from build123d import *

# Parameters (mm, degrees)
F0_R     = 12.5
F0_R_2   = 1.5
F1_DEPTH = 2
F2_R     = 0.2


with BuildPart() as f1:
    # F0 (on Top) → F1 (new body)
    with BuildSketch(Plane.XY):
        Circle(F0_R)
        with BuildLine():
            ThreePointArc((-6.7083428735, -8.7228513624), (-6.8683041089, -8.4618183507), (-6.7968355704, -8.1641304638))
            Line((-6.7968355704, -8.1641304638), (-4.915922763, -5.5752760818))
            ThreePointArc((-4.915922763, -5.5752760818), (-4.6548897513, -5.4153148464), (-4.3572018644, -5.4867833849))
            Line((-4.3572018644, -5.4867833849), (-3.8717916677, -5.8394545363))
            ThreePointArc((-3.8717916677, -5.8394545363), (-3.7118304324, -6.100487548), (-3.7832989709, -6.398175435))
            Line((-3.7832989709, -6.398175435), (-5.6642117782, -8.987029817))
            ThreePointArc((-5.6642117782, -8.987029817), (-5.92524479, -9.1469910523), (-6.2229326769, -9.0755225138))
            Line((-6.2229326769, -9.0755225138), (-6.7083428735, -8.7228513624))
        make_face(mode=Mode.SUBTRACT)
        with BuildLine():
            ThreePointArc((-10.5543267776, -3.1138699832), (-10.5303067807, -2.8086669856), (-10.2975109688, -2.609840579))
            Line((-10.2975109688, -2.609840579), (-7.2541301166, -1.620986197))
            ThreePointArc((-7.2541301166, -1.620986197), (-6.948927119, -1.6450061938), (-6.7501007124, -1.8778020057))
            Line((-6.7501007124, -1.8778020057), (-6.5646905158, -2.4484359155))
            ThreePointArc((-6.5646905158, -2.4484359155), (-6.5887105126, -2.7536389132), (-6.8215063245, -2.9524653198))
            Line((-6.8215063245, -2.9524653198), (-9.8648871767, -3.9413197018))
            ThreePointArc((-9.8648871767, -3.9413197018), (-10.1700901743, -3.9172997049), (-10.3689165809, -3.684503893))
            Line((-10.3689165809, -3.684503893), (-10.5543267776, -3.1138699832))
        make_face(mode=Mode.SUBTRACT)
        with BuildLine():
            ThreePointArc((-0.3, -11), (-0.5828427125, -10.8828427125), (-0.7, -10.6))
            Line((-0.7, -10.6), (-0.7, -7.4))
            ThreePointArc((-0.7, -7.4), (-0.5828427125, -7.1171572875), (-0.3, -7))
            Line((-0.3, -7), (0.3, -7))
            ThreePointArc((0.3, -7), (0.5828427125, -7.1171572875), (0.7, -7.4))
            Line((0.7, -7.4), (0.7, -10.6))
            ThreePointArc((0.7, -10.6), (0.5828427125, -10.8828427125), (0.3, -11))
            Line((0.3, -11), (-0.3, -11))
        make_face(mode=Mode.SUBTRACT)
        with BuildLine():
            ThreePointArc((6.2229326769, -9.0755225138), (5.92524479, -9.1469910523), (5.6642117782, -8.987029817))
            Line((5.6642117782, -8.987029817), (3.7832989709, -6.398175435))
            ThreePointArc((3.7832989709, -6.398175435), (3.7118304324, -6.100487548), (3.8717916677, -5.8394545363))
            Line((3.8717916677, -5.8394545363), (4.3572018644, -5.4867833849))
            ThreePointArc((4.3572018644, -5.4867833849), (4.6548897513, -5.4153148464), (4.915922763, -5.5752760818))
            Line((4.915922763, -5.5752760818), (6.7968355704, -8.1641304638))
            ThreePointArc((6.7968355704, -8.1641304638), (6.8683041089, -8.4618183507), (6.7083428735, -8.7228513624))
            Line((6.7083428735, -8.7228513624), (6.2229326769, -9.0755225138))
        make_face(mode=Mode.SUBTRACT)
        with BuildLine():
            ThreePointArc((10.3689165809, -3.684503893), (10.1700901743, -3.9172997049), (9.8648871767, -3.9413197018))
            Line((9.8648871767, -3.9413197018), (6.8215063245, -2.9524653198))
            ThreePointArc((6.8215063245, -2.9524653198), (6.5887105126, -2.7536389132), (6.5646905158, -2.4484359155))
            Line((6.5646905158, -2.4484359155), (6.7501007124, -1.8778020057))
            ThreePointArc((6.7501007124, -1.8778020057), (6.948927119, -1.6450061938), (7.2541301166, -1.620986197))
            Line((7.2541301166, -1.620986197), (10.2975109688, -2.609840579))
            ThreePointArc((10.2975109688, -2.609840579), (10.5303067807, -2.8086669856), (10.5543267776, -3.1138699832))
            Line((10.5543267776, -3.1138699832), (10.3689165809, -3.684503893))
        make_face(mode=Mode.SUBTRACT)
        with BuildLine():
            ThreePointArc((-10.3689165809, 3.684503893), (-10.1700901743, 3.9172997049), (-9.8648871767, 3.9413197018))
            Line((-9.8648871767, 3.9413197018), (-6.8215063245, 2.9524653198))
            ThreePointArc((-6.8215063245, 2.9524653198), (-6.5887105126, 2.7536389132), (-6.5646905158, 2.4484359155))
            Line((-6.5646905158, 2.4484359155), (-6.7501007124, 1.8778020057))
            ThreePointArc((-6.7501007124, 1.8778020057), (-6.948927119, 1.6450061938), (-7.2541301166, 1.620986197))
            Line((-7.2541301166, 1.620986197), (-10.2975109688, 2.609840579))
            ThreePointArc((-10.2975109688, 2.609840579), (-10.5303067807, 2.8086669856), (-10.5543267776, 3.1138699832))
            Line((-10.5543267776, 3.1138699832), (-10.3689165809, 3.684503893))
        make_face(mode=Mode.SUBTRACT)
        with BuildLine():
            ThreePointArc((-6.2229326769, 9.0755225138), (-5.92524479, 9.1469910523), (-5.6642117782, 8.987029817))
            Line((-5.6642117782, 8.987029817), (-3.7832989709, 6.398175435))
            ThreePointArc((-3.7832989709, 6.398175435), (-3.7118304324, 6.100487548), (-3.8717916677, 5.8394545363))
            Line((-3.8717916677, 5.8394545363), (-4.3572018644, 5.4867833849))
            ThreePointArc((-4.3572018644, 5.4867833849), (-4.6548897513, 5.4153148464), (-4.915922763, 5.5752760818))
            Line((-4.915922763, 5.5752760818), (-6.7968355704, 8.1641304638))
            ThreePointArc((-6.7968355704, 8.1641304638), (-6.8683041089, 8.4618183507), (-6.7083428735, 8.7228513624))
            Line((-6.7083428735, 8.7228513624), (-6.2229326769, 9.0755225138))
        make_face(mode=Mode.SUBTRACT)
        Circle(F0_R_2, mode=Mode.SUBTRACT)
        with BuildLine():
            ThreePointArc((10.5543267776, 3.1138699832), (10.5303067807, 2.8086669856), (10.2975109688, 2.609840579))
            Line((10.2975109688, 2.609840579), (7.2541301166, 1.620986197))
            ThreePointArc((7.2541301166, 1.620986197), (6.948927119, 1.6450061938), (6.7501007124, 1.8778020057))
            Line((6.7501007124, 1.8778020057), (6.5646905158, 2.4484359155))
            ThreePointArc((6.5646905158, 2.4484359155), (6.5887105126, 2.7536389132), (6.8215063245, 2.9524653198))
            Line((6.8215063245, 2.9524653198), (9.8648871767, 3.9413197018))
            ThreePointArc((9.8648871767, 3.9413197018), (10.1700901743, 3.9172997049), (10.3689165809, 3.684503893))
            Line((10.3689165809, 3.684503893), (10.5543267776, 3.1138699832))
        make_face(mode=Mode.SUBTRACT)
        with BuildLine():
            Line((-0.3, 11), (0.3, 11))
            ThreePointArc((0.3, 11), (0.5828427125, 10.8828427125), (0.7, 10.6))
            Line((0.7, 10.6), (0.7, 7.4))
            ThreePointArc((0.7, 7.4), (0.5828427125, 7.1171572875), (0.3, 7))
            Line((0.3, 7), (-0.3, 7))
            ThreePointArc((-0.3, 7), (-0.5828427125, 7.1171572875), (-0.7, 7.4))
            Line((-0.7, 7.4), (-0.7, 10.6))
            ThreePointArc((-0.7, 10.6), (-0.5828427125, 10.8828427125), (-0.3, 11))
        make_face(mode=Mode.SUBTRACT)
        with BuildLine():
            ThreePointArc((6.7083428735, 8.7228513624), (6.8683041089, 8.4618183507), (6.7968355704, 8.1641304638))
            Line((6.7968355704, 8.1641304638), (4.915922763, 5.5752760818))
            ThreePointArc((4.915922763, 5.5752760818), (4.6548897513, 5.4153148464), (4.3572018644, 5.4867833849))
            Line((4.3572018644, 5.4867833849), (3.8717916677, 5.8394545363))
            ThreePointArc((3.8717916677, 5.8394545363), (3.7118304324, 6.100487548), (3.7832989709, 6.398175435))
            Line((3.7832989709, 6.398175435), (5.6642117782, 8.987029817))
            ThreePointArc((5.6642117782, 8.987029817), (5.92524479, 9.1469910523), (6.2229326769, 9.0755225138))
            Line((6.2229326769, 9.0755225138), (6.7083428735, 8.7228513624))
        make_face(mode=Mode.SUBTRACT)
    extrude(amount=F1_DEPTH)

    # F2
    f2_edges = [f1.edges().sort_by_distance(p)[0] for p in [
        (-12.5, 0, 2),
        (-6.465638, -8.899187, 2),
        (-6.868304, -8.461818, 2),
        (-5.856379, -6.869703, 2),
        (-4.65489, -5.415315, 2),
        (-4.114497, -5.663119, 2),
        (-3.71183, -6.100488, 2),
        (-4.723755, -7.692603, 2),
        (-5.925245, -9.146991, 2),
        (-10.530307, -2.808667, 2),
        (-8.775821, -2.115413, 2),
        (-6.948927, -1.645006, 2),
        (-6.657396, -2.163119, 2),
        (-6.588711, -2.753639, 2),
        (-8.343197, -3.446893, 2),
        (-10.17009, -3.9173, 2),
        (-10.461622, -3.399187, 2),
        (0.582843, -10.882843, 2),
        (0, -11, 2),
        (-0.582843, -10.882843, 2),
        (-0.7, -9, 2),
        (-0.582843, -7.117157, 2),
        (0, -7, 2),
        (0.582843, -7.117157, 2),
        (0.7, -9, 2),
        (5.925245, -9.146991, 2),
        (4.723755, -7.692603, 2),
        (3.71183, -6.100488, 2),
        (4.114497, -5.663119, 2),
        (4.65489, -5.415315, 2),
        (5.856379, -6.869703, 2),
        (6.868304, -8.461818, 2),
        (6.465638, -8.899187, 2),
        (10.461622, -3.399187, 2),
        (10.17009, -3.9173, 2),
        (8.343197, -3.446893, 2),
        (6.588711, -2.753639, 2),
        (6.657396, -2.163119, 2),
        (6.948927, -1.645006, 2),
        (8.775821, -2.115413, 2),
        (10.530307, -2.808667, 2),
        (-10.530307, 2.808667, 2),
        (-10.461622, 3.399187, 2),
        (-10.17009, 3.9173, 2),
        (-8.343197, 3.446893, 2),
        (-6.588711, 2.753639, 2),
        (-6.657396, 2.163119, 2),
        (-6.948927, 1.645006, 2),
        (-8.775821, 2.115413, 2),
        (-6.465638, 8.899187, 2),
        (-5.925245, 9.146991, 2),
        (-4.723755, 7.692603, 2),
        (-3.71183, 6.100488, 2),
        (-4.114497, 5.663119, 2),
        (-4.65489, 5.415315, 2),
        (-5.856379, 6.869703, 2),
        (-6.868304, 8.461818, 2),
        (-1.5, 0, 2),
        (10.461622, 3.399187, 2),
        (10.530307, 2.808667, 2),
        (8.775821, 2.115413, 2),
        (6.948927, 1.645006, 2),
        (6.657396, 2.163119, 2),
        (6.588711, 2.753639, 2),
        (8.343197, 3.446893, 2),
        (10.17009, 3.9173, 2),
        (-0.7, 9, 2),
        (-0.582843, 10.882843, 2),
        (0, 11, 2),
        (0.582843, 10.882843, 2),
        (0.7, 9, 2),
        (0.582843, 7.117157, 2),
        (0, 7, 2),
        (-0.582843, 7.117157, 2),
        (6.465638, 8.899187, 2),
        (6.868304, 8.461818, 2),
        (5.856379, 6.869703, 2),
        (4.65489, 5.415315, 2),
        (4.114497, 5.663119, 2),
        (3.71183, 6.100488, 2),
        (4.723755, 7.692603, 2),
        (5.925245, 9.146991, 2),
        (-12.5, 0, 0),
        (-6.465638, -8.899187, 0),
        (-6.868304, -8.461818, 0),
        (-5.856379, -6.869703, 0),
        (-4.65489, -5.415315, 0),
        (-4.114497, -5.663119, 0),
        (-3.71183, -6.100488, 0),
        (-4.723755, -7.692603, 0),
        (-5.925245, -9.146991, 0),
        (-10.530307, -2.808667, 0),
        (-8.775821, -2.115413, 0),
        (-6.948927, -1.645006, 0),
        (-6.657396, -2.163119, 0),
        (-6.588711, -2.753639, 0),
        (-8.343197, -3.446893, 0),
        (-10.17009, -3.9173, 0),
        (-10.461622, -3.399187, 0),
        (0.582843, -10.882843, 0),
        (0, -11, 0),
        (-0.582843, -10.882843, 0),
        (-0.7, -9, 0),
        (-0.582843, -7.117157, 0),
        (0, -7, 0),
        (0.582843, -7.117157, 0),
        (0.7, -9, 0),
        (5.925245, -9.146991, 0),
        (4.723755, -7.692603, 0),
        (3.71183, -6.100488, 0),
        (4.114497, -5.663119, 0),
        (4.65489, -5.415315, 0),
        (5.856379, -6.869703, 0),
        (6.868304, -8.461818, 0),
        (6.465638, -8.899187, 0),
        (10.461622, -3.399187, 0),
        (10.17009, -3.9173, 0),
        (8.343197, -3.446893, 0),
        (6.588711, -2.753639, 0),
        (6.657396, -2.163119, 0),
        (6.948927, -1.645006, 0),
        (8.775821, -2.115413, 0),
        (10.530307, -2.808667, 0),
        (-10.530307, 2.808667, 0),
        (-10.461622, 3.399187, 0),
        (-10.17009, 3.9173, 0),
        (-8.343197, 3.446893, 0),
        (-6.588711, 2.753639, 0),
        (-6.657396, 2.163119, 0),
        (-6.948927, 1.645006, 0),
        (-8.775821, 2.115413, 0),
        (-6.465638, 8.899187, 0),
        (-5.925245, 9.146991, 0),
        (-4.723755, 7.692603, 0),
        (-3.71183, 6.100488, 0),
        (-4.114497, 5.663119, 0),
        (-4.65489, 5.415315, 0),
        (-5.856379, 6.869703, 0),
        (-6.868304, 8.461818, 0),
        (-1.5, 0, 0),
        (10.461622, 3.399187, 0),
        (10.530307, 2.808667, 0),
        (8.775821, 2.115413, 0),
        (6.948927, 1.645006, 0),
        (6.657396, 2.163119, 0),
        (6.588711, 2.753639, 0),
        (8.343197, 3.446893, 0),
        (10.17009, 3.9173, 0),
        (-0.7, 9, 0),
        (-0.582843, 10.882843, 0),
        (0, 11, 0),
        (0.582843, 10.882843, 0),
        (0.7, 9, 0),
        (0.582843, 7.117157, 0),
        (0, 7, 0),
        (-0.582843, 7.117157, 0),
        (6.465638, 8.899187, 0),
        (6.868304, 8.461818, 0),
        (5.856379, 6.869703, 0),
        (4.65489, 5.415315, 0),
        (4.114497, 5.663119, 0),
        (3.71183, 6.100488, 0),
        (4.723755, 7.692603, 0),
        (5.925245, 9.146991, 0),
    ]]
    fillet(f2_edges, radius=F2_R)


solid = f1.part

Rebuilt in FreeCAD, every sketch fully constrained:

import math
import FreeCAD as App
import Part
import Sketcher
Q = App.Units.Quantity


def edges_at(feature, points):
    """Names of the edges that pass closest to the given points."""
    edges = feature.Shape.Edges
    near = lambda p: min(range(len(edges)), key=lambda i: edges[i].distToShape(Part.Vertex(*p))[0])
    return sorted({f"Edge{near(p) + 1}" for p in points})

doc = App.newDocument("Part")
body = doc.addObject("PartDesign::Body", "Body")

sketch1 = body.newObject("Sketcher::SketchObject", "Sketch")
sketch1.AttachmentSupport = (doc.getObject("XY_Plane"), [""])
sketch1.MapMode = "FlatFace"
sketch1.addGeometry(Part.Circle(App.Vector(0, 0, 0), App.Vector(0, 0, 1), 12.5), False)
sketch1.addGeometry(Part.LineSegment(App.Vector(-6.222933, -9.075523, 0), App.Vector(-6.708343, -8.722851, 0)), False)
sketch1.addGeometry(Part.ArcOfCircle(Part.Circle(App.Vector(-6.473229, -8.399245, 0), App.Vector(0, 0, 1), 0.4), math.radians(144), math.radians(234)), False)
sketch1.addGeometry(Part.LineSegment(App.Vector(-6.796836, -8.16413, 0), App.Vector(-4.915923, -5.575276, 0)), False)
sketch1.addGeometry(Part.ArcOfCircle(Part.Circle(App.Vector(-4.592316, -5.81039, 0), App.Vector(0, 0, 1), 0.4), math.radians(54), math.radians(144)), False)
sketch1.addGeometry(Part.LineSegment(App.Vector(-4.357202, -5.486783, 0), App.Vector(-3.871792, -5.839455, 0)), False)
sketch1.addGeometry(Part.ArcOfCircle(Part.Circle(App.Vector(-4.106906, -6.163061, 0), App.Vector(0, 0, 1), 0.4), math.radians(-36), math.radians(54)), False)
sketch1.addGeometry(Part.LineSegment(App.Vector(-3.783299, -6.398175, 0), App.Vector(-5.664212, -8.98703, 0)), False)
sketch1.addGeometry(Part.ArcOfCircle(Part.Circle(App.Vector(-5.987819, -8.751916, 0), App.Vector(0, 0, 1), 0.4), math.radians(-126), math.radians(-36)), False)
sketch1.addGeometry(Part.LineSegment(App.Vector(0.3, -11, 0), App.Vector(-0.3, -11, 0)), False)
sketch1.addGeometry(Part.ArcOfCircle(Part.Circle(App.Vector(-0.3, -10.6, 0), App.Vector(0, 0, 1), 0.4), math.radians(180), math.radians(270)), False)
sketch1.addGeometry(Part.LineSegment(App.Vector(-0.7, -10.6, 0), App.Vector(-0.7, -7.4, 0)), False)
sketch1.addGeometry(Part.ArcOfCircle(Part.Circle(App.Vector(-0.3, -7.4, 0), App.Vector(0, 0, 1), 0.4), math.radians(90), math.radians(180)), False)
sketch1.addGeometry(Part.LineSegment(App.Vector(-0.3, -7, 0), App.Vector(0.3, -7, 0)), False)
sketch1.addGeometry(Part.ArcOfCircle(Part.Circle(App.Vector(0.3, -7.4, 0), App.Vector(0, 0, 1), 0.4), math.radians(0), math.radians(90)), False)
sketch1.addGeometry(Part.LineSegment(App.Vector(0.7, -7.4, 0), App.Vector(0.7, -10.6, 0)), False)
sketch1.addGeometry(Part.ArcOfCircle(Part.Circle(App.Vector(0.3, -10.6, 0), App.Vector(0, 0, 1), 0.4), math.radians(-90), math.radians(0)), False)
sketch1.addGeometry(Part.LineSegment(App.Vector(-10.368917, -3.684504, 0), App.Vector(-10.554327, -3.11387, 0)), False)
sketch1.addGeometry(Part.ArcOfCircle(Part.Circle(App.Vector(-10.173904, -2.990263, 0), App.Vector(0, 0, 1), 0.4), math.radians(108), math.radians(198)), False)
sketch1.addGeometry(Part.LineSegment(App.Vector(-10.297511, -2.609841, 0), App.Vector(-7.25413, -1.620986, 0)), False)
sketch1.addGeometry(Part.ArcOfCircle(Part.Circle(App.Vector(-7.130523, -2.001409, 0), App.Vector(0, 0, 1), 0.4), math.radians(18), math.radians(108)), False)
sketch1.addGeometry(Part.LineSegment(App.Vector(-6.750101, -1.877802, 0), App.Vector(-6.564691, -2.448436, 0)), False)
sketch1.addGeometry(Part.ArcOfCircle(Part.Circle(App.Vector(-6.945113, -2.572043, 0), App.Vector(0, 0, 1), 0.4), math.radians(-72), math.radians(18)), False)
sketch1.addGeometry(Part.LineSegment(App.Vector(-6.821506, -2.952465, 0), App.Vector(-9.864887, -3.94132, 0)), False)
sketch1.addGeometry(Part.ArcOfCircle(Part.Circle(App.Vector(-9.988494, -3.560897, 0), App.Vector(0, 0, 1), 0.4), math.radians(-162), math.radians(-72)), False)
sketch1.addGeometry(Part.LineSegment(App.Vector(6.708343, -8.722851, 0), App.Vector(6.222933, -9.075523, 0)), False)
sketch1.addGeometry(Part.ArcOfCircle(Part.Circle(App.Vector(5.987819, -8.751916, 0), App.Vector(0, 0, 1), 0.4), math.radians(-144), math.radians(-54)), False)
sketch1.addGeometry(Part.LineSegment(App.Vector(5.664212, -8.98703, 0), App.Vector(3.783299, -6.398175, 0)), False)
sketch1.addGeometry(Part.ArcOfCircle(Part.Circle(App.Vector(4.106906, -6.163061, 0), App.Vector(0, 0, 1), 0.4), math.radians(126), math.radians(216)), False)
sketch1.addGeometry(Part.LineSegment(App.Vector(3.871792, -5.839455, 0), App.Vector(4.357202, -5.486783, 0)), False)
sketch1.addGeometry(Part.ArcOfCircle(Part.Circle(App.Vector(4.592316, -5.81039, 0), App.Vector(0, 0, 1), 0.4), math.radians(36), math.radians(126)), False)
sketch1.addGeometry(Part.LineSegment(App.Vector(4.915923, -5.575276, 0), App.Vector(6.796836, -8.16413, 0)), False)
sketch1.addGeometry(Part.ArcOfCircle(Part.Circle(App.Vector(6.473229, -8.399245, 0), App.Vector(0, 0, 1), 0.4), math.radians(-54), math.radians(36)), False)
sketch1.addGeometry(Part.LineSegment(App.Vector(10.554327, -3.11387, 0), App.Vector(10.368917, -3.684504, 0)), False)
sketch1.addGeometry(Part.ArcOfCircle(Part.Circle(App.Vector(9.988494, -3.560897, 0), App.Vector(0, 0, 1), 0.4), math.radians(-108), math.radians(-18)), False)
sketch1.addGeometry(Part.LineSegment(App.Vector(9.864887, -3.94132, 0), App.Vector(6.821506, -2.952465, 0)), False)
sketch1.addGeometry(Part.ArcOfCircle(Part.Circle(App.Vector(6.945113, -2.572043, 0), App.Vector(0, 0, 1), 0.4), math.radians(162), math.radians(252)), False)
sketch1.addGeometry(Part.LineSegment(App.Vector(6.564691, -2.448436, 0), App.Vector(6.750101, -1.877802, 0)), False)
sketch1.addGeometry(Part.ArcOfCircle(Part.Circle(App.Vector(7.130523, -2.001409, 0), App.Vector(0, 0, 1), 0.4), math.radians(72), math.radians(162)), False)
sketch1.addGeometry(Part.LineSegment(App.Vector(7.25413, -1.620986, 0), App.Vector(10.297511, -2.609841, 0)), False)
sketch1.addGeometry(Part.ArcOfCircle(Part.Circle(App.Vector(10.173904, -2.990263, 0), App.Vector(0, 0, 1), 0.4), math.radians(-18), math.radians(72)), False)
sketch1.addGeometry(Part.LineSegment(App.Vector(-10.554327, 3.11387, 0), App.Vector(-10.368917, 3.684504, 0)), False)
sketch1.addGeometry(Part.ArcOfCircle(Part.Circle(App.Vector(-9.988494, 3.560897, 0), App.Vector(0, 0, 1), 0.4), math.radians(72), math.radians(162)), False)
sketch1.addGeometry(Part.LineSegment(App.Vector(-9.864887, 3.94132, 0), App.Vector(-6.821506, 2.952465, 0)), False)
sketch1.addGeometry(Part.ArcOfCircle(Part.Circle(App.Vector(-6.945113, 2.572043, 0), App.Vector(0, 0, 1), 0.4), math.radians(-18), math.radians(72)), False)
sketch1.addGeometry(Part.LineSegment(App.Vector(-6.564691, 2.448436, 0), App.Vector(-6.750101, 1.877802, 0)), False)
sketch1.addGeometry(Part.ArcOfCircle(Part.Circle(App.Vector(-7.130523, 2.001409, 0), App.Vector(0, 0, 1), 0.4), math.radians(-108), math.radians(-18)), False)
sketch1.addGeometry(Part.LineSegment(App.Vector(-7.25413, 1.620986, 0), App.Vector(-10.297511, 2.609841, 0)), False)
sketch1.addGeometry(Part.ArcOfCircle(Part.Circle(App.Vector(-10.173904, 2.990263, 0), App.Vector(0, 0, 1), 0.4), math.radians(162), math.radians(252)), False)
sketch1.addGeometry(Part.Circle(App.Vector(0, 0, 0), App.Vector(0, 0, 1), 1.5), False)
sketch1.addGeometry(Part.LineSegment(App.Vector(-6.708343, 8.722851, 0), App.Vector(-6.222933, 9.075523, 0)), False)
sketch1.addGeometry(Part.ArcOfCircle(Part.Circle(App.Vector(-5.987819, 8.751916, 0), App.Vector(0, 0, 1), 0.4), math.radians(36), math.radians(126)), False)
sketch1.addGeometry(Part.LineSegment(App.Vector(-5.664212, 8.98703, 0), App.Vector(-3.783299, 6.398175, 0)), False)
sketch1.addGeometry(Part.ArcOfCircle(Part.Circle(App.Vector(-4.106906, 6.163061, 0), App.Vector(0, 0, 1), 0.4), math.radians(-54), math.radians(36)), False)
sketch1.addGeometry(Part.LineSegment(App.Vector(-3.871792, 5.839455, 0), App.Vector(-4.357202, 5.486783, 0)), False)
sketch1.addGeometry(Part.ArcOfCircle(Part.Circle(App.Vector(-4.592316, 5.81039, 0), App.Vector(0, 0, 1), 0.4), math.radians(-144), math.radians(-54)), False)
sketch1.addGeometry(Part.LineSegment(App.Vector(-4.915923, 5.575276, 0), App.Vector(-6.796836, 8.16413, 0)), False)
sketch1.addGeometry(Part.ArcOfCircle(Part.Circle(App.Vector(-6.473229, 8.399245, 0), App.Vector(0, 0, 1), 0.4), math.radians(126), math.radians(216)), False)
sketch1.addGeometry(Part.ArcOfCircle(Part.Circle(App.Vector(-0.3, 10.6, 0), App.Vector(0, 0, 1), 0.4), math.radians(90), math.radians(180)), False)
sketch1.addGeometry(Part.LineSegment(App.Vector(-0.3, 11, 0), App.Vector(0.3, 11, 0)), False)
sketch1.addGeometry(Part.ArcOfCircle(Part.Circle(App.Vector(0.3, 10.6, 0), App.Vector(0, 0, 1), 0.4), math.radians(0), math.radians(90)), False)
sketch1.addGeometry(Part.LineSegment(App.Vector(0.7, 10.6, 0), App.Vector(0.7, 7.4, 0)), False)
sketch1.addGeometry(Part.ArcOfCircle(Part.Circle(App.Vector(0.3, 7.4, 0), App.Vector(0, 0, 1), 0.4), math.radians(-90), math.radians(0)), False)
sketch1.addGeometry(Part.LineSegment(App.Vector(0.3, 7, 0), App.Vector(-0.3, 7, 0)), False)
sketch1.addGeometry(Part.ArcOfCircle(Part.Circle(App.Vector(-0.3, 7.4, 0), App.Vector(0, 0, 1), 0.4), math.radians(180), math.radians(270)), False)
sketch1.addGeometry(Part.LineSegment(App.Vector(-0.7, 7.4, 0), App.Vector(-0.7, 10.6, 0)), False)
sketch1.addGeometry(Part.LineSegment(App.Vector(10.368917, 3.684504, 0), App.Vector(10.554327, 3.11387, 0)), False)
sketch1.addGeometry(Part.ArcOfCircle(Part.Circle(App.Vector(10.173904, 2.990263, 0), App.Vector(0, 0, 1), 0.4), math.radians(-72), math.radians(18)), False)
sketch1.addGeometry(Part.LineSegment(App.Vector(10.297511, 2.609841, 0), App.Vector(7.25413, 1.620986, 0)), False)
sketch1.addGeometry(Part.ArcOfCircle(Part.Circle(App.Vector(7.130523, 2.001409, 0), App.Vector(0, 0, 1), 0.4), math.radians(-162), math.radians(-72)), False)
sketch1.addGeometry(Part.LineSegment(App.Vector(6.750101, 1.877802, 0), App.Vector(6.564691, 2.448436, 0)), False)
sketch1.addGeometry(Part.ArcOfCircle(Part.Circle(App.Vector(6.945113, 2.572043, 0), App.Vector(0, 0, 1), 0.4), math.radians(108), math.radians(198)), False)
sketch1.addGeometry(Part.LineSegment(App.Vector(6.821506, 2.952465, 0), App.Vector(9.864887, 3.94132, 0)), False)
sketch1.addGeometry(Part.ArcOfCircle(Part.Circle(App.Vector(9.988494, 3.560897, 0), App.Vector(0, 0, 1), 0.4), math.radians(18), math.radians(108)), False)
sketch1.addGeometry(Part.LineSegment(App.Vector(6.222933, 9.075523, 0), App.Vector(6.708343, 8.722851, 0)), False)
sketch1.addGeometry(Part.ArcOfCircle(Part.Circle(App.Vector(6.473229, 8.399245, 0), App.Vector(0, 0, 1), 0.4), math.radians(-36), math.radians(54)), False)
sketch1.addGeometry(Part.LineSegment(App.Vector(6.796836, 8.16413, 0), App.Vector(4.915923, 5.575276, 0)), False)
sketch1.addGeometry(Part.ArcOfCircle(Part.Circle(App.Vector(4.592316, 5.81039, 0), App.Vector(0, 0, 1), 0.4), math.radians(-126), math.radians(-36)), False)
sketch1.addGeometry(Part.LineSegment(App.Vector(4.357202, 5.486783, 0), App.Vector(3.871792, 5.839455, 0)), False)
sketch1.addGeometry(Part.ArcOfCircle(Part.Circle(App.Vector(4.106906, 6.163061, 0), App.Vector(0, 0, 1), 0.4), math.radians(144), math.radians(234)), False)
sketch1.addGeometry(Part.LineSegment(App.Vector(3.783299, 6.398175, 0), App.Vector(5.664212, 8.98703, 0)), False)
sketch1.addGeometry(Part.ArcOfCircle(Part.Circle(App.Vector(5.987819, 8.751916, 0), App.Vector(0, 0, 1), 0.4), math.radians(54), math.radians(144)), False)
sketch1.addConstraint(Sketcher.Constraint("Tangent", 1, 2, 2, 2))
sketch1.addConstraint(Sketcher.Constraint("Tangent", 2, 1, 3, 1))
sketch1.addConstraint(Sketcher.Constraint("Tangent", 3, 2, 4, 2))
sketch1.addConstraint(Sketcher.Constraint("Tangent", 4, 1, 5, 1))
sketch1.addConstraint(Sketcher.Constraint("Tangent", 5, 2, 6, 2))
sketch1.addConstraint(Sketcher.Constraint("Tangent", 6, 1, 7, 1))
sketch1.addConstraint(Sketcher.Constraint("Tangent", 7, 2, 8, 2))
sketch1.addConstraint(Sketcher.Constraint("Tangent", 8, 1, 1, 1))
sketch1.addConstraint(Sketcher.Constraint("Tangent", 9, 2, 10, 2))
sketch1.addConstraint(Sketcher.Constraint("Tangent", 10, 1, 11, 1))
sketch1.addConstraint(Sketcher.Constraint("Tangent", 11, 2, 12, 2))
sketch1.addConstraint(Sketcher.Constraint("Tangent", 12, 1, 13, 1))
sketch1.addConstraint(Sketcher.Constraint("Tangent", 13, 2, 14, 2))
sketch1.addConstraint(Sketcher.Constraint("Tangent", 14, 1, 15, 1))
sketch1.addConstraint(Sketcher.Constraint("Tangent", 15, 2, 16, 2))
sketch1.addConstraint(Sketcher.Constraint("Tangent", 16, 1, 9, 1))
sketch1.addConstraint(Sketcher.Constraint("Tangent", 17, 2, 18, 2))
sketch1.addConstraint(Sketcher.Constraint("Tangent", 18, 1, 19, 1))
sketch1.addConstraint(Sketcher.Constraint("Tangent", 19, 2, 20, 2))
sketch1.addConstraint(Sketcher.Constraint("Tangent", 20, 1, 21, 1))
sketch1.addConstraint(Sketcher.Constraint("Tangent", 21, 2, 22, 2))
sketch1.addConstraint(Sketcher.Constraint("Tangent", 22, 1, 23, 1))
sketch1.addConstraint(Sketcher.Constraint("Tangent", 23, 2, 24, 2))
sketch1.addConstraint(Sketcher.Constraint("Tangent", 24, 1, 17, 1))
sketch1.addConstraint(Sketcher.Constraint("Tangent", 25, 2, 26, 2))
sketch1.addConstraint(Sketcher.Constraint("Tangent", 26, 1, 27, 1))
sketch1.addConstraint(Sketcher.Constraint("Tangent", 27, 2, 28, 2))
sketch1.addConstraint(Sketcher.Constraint("Tangent", 28, 1, 29, 1))
sketch1.addConstraint(Sketcher.Constraint("Tangent", 29, 2, 30, 2))
sketch1.addConstraint(Sketcher.Constraint("Tangent", 30, 1, 31, 1))
sketch1.addConstraint(Sketcher.Constraint("Tangent", 31, 2, 32, 2))
sketch1.addConstraint(Sketcher.Constraint("Tangent", 32, 1, 25, 1))
sketch1.addConstraint(Sketcher.Constraint("Tangent", 33, 2, 34, 2))
sketch1.addConstraint(Sketcher.Constraint("Tangent", 34, 1, 35, 1))
sketch1.addConstraint(Sketcher.Constraint("Tangent", 35, 2, 36, 2))
sketch1.addConstraint(Sketcher.Constraint("Tangent", 36, 1, 37, 1))
sketch1.addConstraint(Sketcher.Constraint("Tangent", 37, 2, 38, 2))
sketch1.addConstraint(Sketcher.Constraint("Tangent", 38, 1, 39, 1))
sketch1.addConstraint(Sketcher.Constraint("Tangent", 39, 2, 40, 2))
sketch1.addConstraint(Sketcher.Constraint("Tangent", 40, 1, 33, 1))
sketch1.addConstraint(Sketcher.Constraint("Tangent", 41, 2, 42, 2))
sketch1.addConstraint(Sketcher.Constraint("Tangent", 42, 1, 43, 1))
sketch1.addConstraint(Sketcher.Constraint("Tangent", 43, 2, 44, 2))
sketch1.addConstraint(Sketcher.Constraint("Tangent", 44, 1, 45, 1))
sketch1.addConstraint(Sketcher.Constraint("Tangent", 45, 2, 46, 2))
sketch1.addConstraint(Sketcher.Constraint("Tangent", 46, 1, 47, 1))
sketch1.addConstraint(Sketcher.Constraint("Tangent", 47, 2, 48, 2))
sketch1.addConstraint(Sketcher.Constraint("Tangent", 48, 1, 41, 1))
sketch1.addConstraint(Sketcher.Constraint("Tangent", 50, 2, 51, 2))
sketch1.addConstraint(Sketcher.Constraint("Tangent", 51, 1, 52, 1))
sketch1.addConstraint(Sketcher.Constraint("Tangent", 52, 2, 53, 2))
sketch1.addConstraint(Sketcher.Constraint("Tangent", 53, 1, 54, 1))
sketch1.addConstraint(Sketcher.Constraint("Tangent", 54, 2, 55, 2))
sketch1.addConstraint(Sketcher.Constraint("Tangent", 55, 1, 56, 1))
sketch1.addConstraint(Sketcher.Constraint("Tangent", 56, 2, 57, 2))
sketch1.addConstraint(Sketcher.Constraint("Tangent", 57, 1, 50, 1))
sketch1.addConstraint(Sketcher.Constraint("Tangent", 58, 1, 59, 1))
sketch1.addConstraint(Sketcher.Constraint("Tangent", 59, 2, 60, 2))
sketch1.addConstraint(Sketcher.Constraint("Tangent", 60, 1, 61, 1))
sketch1.addConstraint(Sketcher.Constraint("Tangent", 61, 2, 62, 2))
sketch1.addConstraint(Sketcher.Constraint("Tangent", 62, 1, 63, 1))
sketch1.addConstraint(Sketcher.Constraint("Tangent", 63, 2, 64, 2))
sketch1.addConstraint(Sketcher.Constraint("Tangent", 64, 1, 65, 1))
sketch1.addConstraint(Sketcher.Constraint("Tangent", 65, 2, 58, 2))
sketch1.addConstraint(Sketcher.Constraint("Tangent", 66, 2, 67, 2))
sketch1.addConstraint(Sketcher.Constraint("Tangent", 67, 1, 68, 1))
sketch1.addConstraint(Sketcher.Constraint("Tangent", 68, 2, 69, 2))
sketch1.addConstraint(Sketcher.Constraint("Tangent", 69, 1, 70, 1))
sketch1.addConstraint(Sketcher.Constraint("Tangent", 70, 2, 71, 2))
sketch1.addConstraint(Sketcher.Constraint("Tangent", 71, 1, 72, 1))
sketch1.addConstraint(Sketcher.Constraint("Tangent", 72, 2, 73, 2))
sketch1.addConstraint(Sketcher.Constraint("Tangent", 73, 1, 66, 1))
sketch1.addConstraint(Sketcher.Constraint("Tangent", 74, 2, 75, 2))
sketch1.addConstraint(Sketcher.Constraint("Tangent", 75, 1, 76, 1))
sketch1.addConstraint(Sketcher.Constraint("Tangent", 76, 2, 77, 2))
sketch1.addConstraint(Sketcher.Constraint("Tangent", 77, 1, 78, 1))
sketch1.addConstraint(Sketcher.Constraint("Tangent", 78, 2, 79, 2))
sketch1.addConstraint(Sketcher.Constraint("Tangent", 79, 1, 80, 1))
sketch1.addConstraint(Sketcher.Constraint("Tangent", 80, 2, 81, 2))
sketch1.addConstraint(Sketcher.Constraint("Tangent", 81, 1, 74, 1))
sketch1.addConstraint(Sketcher.Constraint("Horizontal", 9))
sketch1.addConstraint(Sketcher.Constraint("Vertical", 11))
sketch1.addConstraint(Sketcher.Constraint("Horizontal", 13))
sketch1.addConstraint(Sketcher.Constraint("Vertical", 15))
sketch1.addConstraint(Sketcher.Constraint("Horizontal", 59))
sketch1.addConstraint(Sketcher.Constraint("Vertical", 61))
sketch1.addConstraint(Sketcher.Constraint("Horizontal", 63))
sketch1.addConstraint(Sketcher.Constraint("Vertical", 65))
sketch1.addConstraint(Sketcher.Constraint("Coincident", 0, 3, -1, 1))
sketch1.addConstraint(Sketcher.Constraint("Coincident", 49, 3, -1, 1))
sketch1.addConstraint(Sketcher.Constraint("Equal", 2, 4))
sketch1.addConstraint(Sketcher.Constraint("Equal", 4, 6))
sketch1.addConstraint(Sketcher.Constraint("Equal", 6, 8))
sketch1.addConstraint(Sketcher.Constraint("Equal", 8, 10))
sketch1.addConstraint(Sketcher.Constraint("Equal", 10, 12))
sketch1.addConstraint(Sketcher.Constraint("Equal", 12, 14))
sketch1.addConstraint(Sketcher.Constraint("Equal", 14, 16))
sketch1.addConstraint(Sketcher.Constraint("Equal", 16, 18))
sketch1.addConstraint(Sketcher.Constraint("Equal", 18, 20))
sketch1.addConstraint(Sketcher.Constraint("Equal", 20, 22))
sketch1.addConstraint(Sketcher.Constraint("Equal", 22, 24))
sketch1.addConstraint(Sketcher.Constraint("Equal", 24, 26))
sketch1.addConstraint(Sketcher.Constraint("Equal", 26, 28))
sketch1.addConstraint(Sketcher.Constraint("Equal", 28, 30))
sketch1.addConstraint(Sketcher.Constraint("Equal", 30, 32))
sketch1.addConstraint(Sketcher.Constraint("Equal", 32, 34))
sketch1.addConstraint(Sketcher.Constraint("Equal", 34, 36))
sketch1.addConstraint(Sketcher.Constraint("Equal", 36, 38))
sketch1.addConstraint(Sketcher.Constraint("Equal", 38, 40))
sketch1.addConstraint(Sketcher.Constraint("Equal", 40, 42))
sketch1.addConstraint(Sketcher.Constraint("Equal", 42, 44))
sketch1.addConstraint(Sketcher.Constraint("Equal", 44, 46))
sketch1.addConstraint(Sketcher.Constraint("Equal", 46, 48))
sketch1.addConstraint(Sketcher.Constraint("Equal", 48, 51))
sketch1.addConstraint(Sketcher.Constraint("Equal", 51, 53))
sketch1.addConstraint(Sketcher.Constraint("Equal", 53, 55))
sketch1.addConstraint(Sketcher.Constraint("Equal", 55, 57))
sketch1.addConstraint(Sketcher.Constraint("Equal", 57, 58))
sketch1.addConstraint(Sketcher.Constraint("Equal", 58, 60))
sketch1.addConstraint(Sketcher.Constraint("Equal", 60, 62))
sketch1.addConstraint(Sketcher.Constraint("Equal", 62, 64))
sketch1.addConstraint(Sketcher.Constraint("Equal", 64, 67))
sketch1.addConstraint(Sketcher.Constraint("Equal", 67, 69))
sketch1.addConstraint(Sketcher.Constraint("Equal", 69, 71))
sketch1.addConstraint(Sketcher.Constraint("Equal", 71, 73))
sketch1.addConstraint(Sketcher.Constraint("Equal", 73, 75))
sketch1.addConstraint(Sketcher.Constraint("Equal", 75, 77))
sketch1.addConstraint(Sketcher.Constraint("Equal", 77, 79))
sketch1.addConstraint(Sketcher.Constraint("Equal", 79, 81))
sketch1.addConstraint(Sketcher.Constraint("Symmetric", 34, 3, 42, 3, -1, 1))
sketch1.addConstraint(Sketcher.Constraint("Symmetric", 36, 3, 44, 3, -1, 1))
sketch1.addConstraint(Sketcher.Constraint("Symmetric", 38, 3, 46, 3, -1, 1))
sketch1.addConstraint(Sketcher.Constraint("Symmetric", 40, 3, 48, 3, -1, 1))
sketch1.addConstraint(Sketcher.Constraint("Symmetric", 26, 3, 51, 3, -1, 1))
sketch1.addConstraint(Sketcher.Constraint("Symmetric", 28, 3, 53, 3, -1, 1))
sketch1.addConstraint(Sketcher.Constraint("Symmetric", 30, 3, 55, 3, -1, 1))
sketch1.addConstraint(Sketcher.Constraint("Symmetric", 32, 3, 57, 3, -1, 1))
sketch1.addConstraint(Sketcher.Constraint("Symmetric", 16, 3, 58, 3, -1, 1))
sketch1.addConstraint(Sketcher.Constraint("Symmetric", 12, 3, 62, 3, -1, 1))
sketch1.addConstraint(Sketcher.Constraint("Symmetric", 18, 3, 67, 3, -1, 1))
sketch1.addConstraint(Sketcher.Constraint("Symmetric", 20, 3, 69, 3, -1, 1))
sketch1.addConstraint(Sketcher.Constraint("Symmetric", 22, 3, 71, 3, -1, 1))
sketch1.addConstraint(Sketcher.Constraint("Symmetric", 24, 3, 73, 3, -1, 1))
sketch1.addConstraint(Sketcher.Constraint("Symmetric", 2, 3, 75, 3, -1, 1))
sketch1.addConstraint(Sketcher.Constraint("Symmetric", 4, 3, 77, 3, -1, 1))
sketch1.addConstraint(Sketcher.Constraint("Symmetric", 6, 3, 79, 3, -1, 1))
sketch1.addConstraint(Sketcher.Constraint("Symmetric", 8, 3, 81, 3, -1, 1))
sketch1.addConstraint(Sketcher.Constraint("Symmetric", 8, 3, 26, 3, -2))
sketch1.addConstraint(Sketcher.Constraint("Symmetric", 6, 3, 28, 3, -2))
sketch1.addConstraint(Sketcher.Constraint("Symmetric", 4, 3, 30, 3, -2))
sketch1.addConstraint(Sketcher.Constraint("Symmetric", 2, 3, 32, 3, -2))
sketch1.addConstraint(Sketcher.Constraint("Symmetric", 24, 3, 34, 3, -2))
sketch1.addConstraint(Sketcher.Constraint("Symmetric", 22, 3, 36, 3, -2))
sketch1.addConstraint(Sketcher.Constraint("Symmetric", 20, 3, 38, 3, -2))
sketch1.addConstraint(Sketcher.Constraint("Symmetric", 18, 3, 40, 3, -2))
sketch1.addConstraint(Sketcher.Constraint("Perpendicular", 1, 3))
sketch1.addConstraint(Sketcher.Constraint("Perpendicular", 3, 5))
sketch1.addConstraint(Sketcher.Constraint("Perpendicular", 5, 7))
sketch1.addConstraint(Sketcher.Constraint("Perpendicular", 17, 19))
sketch1.addConstraint(Sketcher.Constraint("Perpendicular", 19, 21))
sketch1.addConstraint(Sketcher.Constraint("Perpendicular", 21, 23))
sketch1.addConstraint(Sketcher.Constraint("Vertical", 12, 3, 58, 3))
sketch1.addConstraint(Sketcher.Constraint("Equal", 5, 17))
sketch1.addConstraint(Sketcher.Constraint("Equal", 7, 19))
sketch1.addConstraint(Sketcher.Constraint("Diameter", 0, Q("25 mm")))
sketch1.addConstraint(Sketcher.Constraint("Diameter", 49, Q("3 mm")))
sketch1.addConstraint(Sketcher.Constraint("Radius", 2, Q("0.4 mm")))
sketch1.addConstraint(Sketcher.Constraint("Angle", 1, Q("144 deg")))
sketch1.addConstraint(Sketcher.Constraint("Angle", 17, Q("108 deg")))
sketch1.addConstraint(Sketcher.Constraint("DistanceX", 9, 2, 9, 1, Q("0.6 mm")))
sketch1.addConstraint(Sketcher.Constraint("DistanceY", 11, 1, 11, 2, Q("3.2 mm")))
sketch1.addConstraint(Sketcher.Constraint("DistanceY", 9, 2, -1, 1, Q("11 mm")))
sketch1.addConstraint(Sketcher.Constraint("Distance", 1, Q("0.6 mm")))
sketch1.addConstraint(Sketcher.Constraint("Distance", 3, Q("3.2 mm")))
sketch1.addConstraint(Sketcher.Constraint("DistanceX", 4, 1, -1, 1, Q("4.357202 mm")))
sketch1.addConstraint(Sketcher.Constraint("DistanceX", 20, 1, -1, 1, Q("6.750101 mm")))
sketch1.addConstraint(Sketcher.Constraint("DistanceY", 4, 3, -1, 1, Q("5.81039 mm")))
sketch1.addConstraint(Sketcher.Constraint("DistanceY", 20, 3, -1, 1, Q("2.001409 mm")))
pad1 = body.newObject("PartDesign::Pad", "Pad")
pad1.Profile = sketch1
pad1.Length = 2
doc.recompute()

fillet = body.newObject("PartDesign::Fillet", "Fillet")
fillet.Base = (pad1, edges_at(pad1, [
    (-12.5, 0, 2),
    (-6.466, -8.899, 2),
    (-6.868, -8.462, 2),
    (-5.856, -6.87, 2),
    (-4.655, -5.415, 2),
    (-4.114, -5.663, 2),
    (-3.712, -6.1, 2),
    (-4.724, -7.693, 2),
    (-5.925, -9.147, 2),
    (-10.53, -2.809, 2),
    (-8.776, -2.115, 2),
    (-6.949, -1.645, 2),
    (-6.657, -2.163, 2),
    (-6.589, -2.754, 2),
    (-8.343, -3.447, 2),
    (-10.17, -3.917, 2),
    (-10.462, -3.399, 2),
    (0.583, -10.883, 2),
    (0, -11, 2),
    (-0.583, -10.883, 2),
    (-0.7, -9, 2),
    (-0.583, -7.117, 2),
    (0, -7, 2),
    (0.583, -7.117, 2),
    (0.7, -9, 2),
    (5.925, -9.147, 2),
    (4.724, -7.693, 2),
    (3.712, -6.1, 2),
    (4.114, -5.663, 2),
    (4.655, -5.415, 2),
    (5.856, -6.87, 2),
    (6.868, -8.462, 2),
    (6.466, -8.899, 2),
    (10.462, -3.399, 2),
    (10.17, -3.917, 2),
    (8.343, -3.447, 2),
    (6.589, -2.754, 2),
    (6.657, -2.163, 2),
    (6.949, -1.645, 2),
    (8.776, -2.115, 2),
    (10.53, -2.809, 2),
    (-10.53, 2.809, 2),
    (-10.462, 3.399, 2),
    (-10.17, 3.917, 2),
    (-8.343, 3.447, 2),
    (-6.589, 2.754, 2),
    (-6.657, 2.163, 2),
    (-6.949, 1.645, 2),
    (-8.776, 2.115, 2),
    (-6.466, 8.899, 2),
    (-5.925, 9.147, 2),
    (-4.724, 7.693, 2),
    (-3.712, 6.1, 2),
    (-4.114, 5.663, 2),
    (-4.655, 5.415, 2),
    (-5.856, 6.87, 2),
    (-6.868, 8.462, 2),
    (-1.5, 0, 2),
    (10.462, 3.399, 2),
    (10.53, 2.809, 2),
    (8.776, 2.115, 2),
    (6.949, 1.645, 2),
    (6.657, 2.163, 2),
    (6.589, 2.754, 2),
    (8.343, 3.447, 2),
    (10.17, 3.917, 2),
    (-0.7, 9, 2),
    (-0.583, 10.883, 2),
    (0, 11, 2),
    (0.583, 10.883, 2),
    (0.7, 9, 2),
    (0.583, 7.117, 2),
    (0, 7, 2),
    (-0.583, 7.117, 2),
    (6.466, 8.899, 2),
    (6.868, 8.462, 2),
    (5.856, 6.87, 2),
    (4.655, 5.415, 2),
    (4.114, 5.663, 2),
    (3.712, 6.1, 2),
    (4.724, 7.693, 2),
    (5.925, 9.147, 2),
    (-12.5, 0, 0),
    (-6.466, -8.899, 0),
    (-6.868, -8.462, 0),
    (-5.856, -6.87, 0),
    (-4.655, -5.415, 0),
    (-4.114, -5.663, 0),
    (-3.712, -6.1, 0),
    (-4.724, -7.693, 0),
    (-5.925, -9.147, 0),
    (-10.53, -2.809, 0),
    (-8.776, -2.115, 0),
    (-6.949, -1.645, 0),
    (-6.657, -2.163, 0),
    (-6.589, -2.754, 0),
    (-8.343, -3.447, 0),
    (-10.17, -3.917, 0),
    (-10.462, -3.399, 0),
    (0.583, -10.883, 0),
    (0, -11, 0),
    (-0.583, -10.883, 0),
    (-0.7, -9, 0),
    (-0.583, -7.117, 0),
    (0, -7, 0),
    (0.583, -7.117, 0),
    (0.7, -9, 0),
    (5.925, -9.147, 0),
    (4.724, -7.693, 0),
    (3.712, -6.1, 0),
    (4.114, -5.663, 0),
    (4.655, -5.415, 0),
    (5.856, -6.87, 0),
    (6.868, -8.462, 0),
    (6.466, -8.899, 0),
    (10.462, -3.399, 0),
    (10.17, -3.917, 0),
    (8.343, -3.447, 0),
    (6.589, -2.754, 0),
    (6.657, -2.163, 0),
    (6.949, -1.645, 0),
    (8.776, -2.115, 0),
    (10.53, -2.809, 0),
    (-10.53, 2.809, 0),
    (-10.462, 3.399, 0),
    (-10.17, 3.917, 0),
    (-8.343, 3.447, 0),
    (-6.589, 2.754, 0),
    (-6.657, 2.163, 0),
    (-6.949, 1.645, 0),
    (-8.776, 2.115, 0),
    (-6.466, 8.899, 0),
    (-5.925, 9.147, 0),
    (-4.724, 7.693, 0),
    (-3.712, 6.1, 0),
    (-4.114, 5.663, 0),
    (-4.655, 5.415, 0),
    (-5.856, 6.87, 0),
    (-6.868, 8.462, 0),
    (-1.5, 0, 0),
    (10.462, 3.399, 0),
    (10.53, 2.809, 0),
    (8.776, 2.115, 0),
    (6.949, 1.645, 0),
    (6.657, 2.163, 0),
    (6.589, 2.754, 0),
    (8.343, 3.447, 0),
    (10.17, 3.917, 0),
    (-0.7, 9, 0),
    (-0.583, 10.883, 0),
    (0, 11, 0),
    (0.583, 10.883, 0),
    (0.7, 9, 0),
    (0.583, 7.117, 0),
    (0, 7, 0),
    (-0.583, 7.117, 0),
    (6.466, 8.899, 0),
    (6.868, 8.462, 0),
    (5.856, 6.87, 0),
    (4.655, 5.415, 0),
    (4.114, 5.663, 0),
    (3.712, 6.1, 0),
    (4.724, 7.693, 0),
    (5.925, 9.147, 0),
]))
fillet.Radius = 0.2

doc.recompute()
